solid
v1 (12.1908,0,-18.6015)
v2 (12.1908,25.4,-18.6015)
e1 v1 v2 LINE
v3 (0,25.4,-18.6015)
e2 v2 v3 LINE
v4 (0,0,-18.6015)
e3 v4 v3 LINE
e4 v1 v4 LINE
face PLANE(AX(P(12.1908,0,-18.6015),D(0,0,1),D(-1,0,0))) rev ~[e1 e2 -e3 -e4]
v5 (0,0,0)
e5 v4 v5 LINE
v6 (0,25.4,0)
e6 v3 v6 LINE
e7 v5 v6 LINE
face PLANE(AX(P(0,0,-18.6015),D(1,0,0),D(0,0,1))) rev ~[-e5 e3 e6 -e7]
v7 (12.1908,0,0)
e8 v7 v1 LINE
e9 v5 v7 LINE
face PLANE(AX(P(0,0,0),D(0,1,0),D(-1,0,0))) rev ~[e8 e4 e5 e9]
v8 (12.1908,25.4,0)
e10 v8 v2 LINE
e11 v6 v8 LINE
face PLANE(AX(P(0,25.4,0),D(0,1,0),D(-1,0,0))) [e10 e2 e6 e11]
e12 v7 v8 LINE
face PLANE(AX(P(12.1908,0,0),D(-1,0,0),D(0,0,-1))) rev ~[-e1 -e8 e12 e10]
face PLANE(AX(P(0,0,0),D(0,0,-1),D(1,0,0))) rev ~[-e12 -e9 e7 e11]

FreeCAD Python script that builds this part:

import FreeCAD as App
import Part
import Sketcher

V = App.Vector
Q = App.Units.Quantity

doc = App.newDocument("Part")
body = doc.addObject("PartDesign::Body", "Body")

sketch1 = body.newObject("Sketcher::SketchObject", "Sketch")
sketch1.AttachmentSupport = (doc.getObject("XZ_Plane"), [""])
sketch1.MapMode = "FlatFace"
sketch1.addGeometry([
    Part.LineSegment(V(0, -19, 0), V(0, 0, 0)),
    Part.LineSegment(V(0, 0, 0), V(12, 0, 0)),
    Part.LineSegment(V(12, 0, 0), V(12, -19, 0)),
    Part.LineSegment(V(12, -19, 0), V(0, -19, 0)),
], False)
sketch1.addConstraint([
    Sketcher.Constraint("Coincident", 0, 2, 1, 1),
    Sketcher.Constraint("Coincident", 1, 2, 2, 1),
    Sketcher.Constraint("Coincident", 2, 2, 3, 1),
    Sketcher.Constraint("Coincident", 3, 2, 0, 1),
    Sketcher.Constraint("Vertical", 0),
    Sketcher.Constraint("Horizontal", 1),
    Sketcher.Constraint("Vertical", 2),
    Sketcher.Constraint("Horizontal", 3),
    Sketcher.Constraint("Coincident", 0, 2, -1, 1),
    Sketcher.Constraint("DistanceX", 1, 1, 1, 2, 12.1908),
    Sketcher.Constraint("DistanceY", 0, 1, 0, 2, 18.6015),
])
pad1 = body.newObject("PartDesign::Pad", "Pad")
pad1.Profile = sketch1
pad1.Length = Q("1 in")
pad1.Reversed = True

doc.recompute()
